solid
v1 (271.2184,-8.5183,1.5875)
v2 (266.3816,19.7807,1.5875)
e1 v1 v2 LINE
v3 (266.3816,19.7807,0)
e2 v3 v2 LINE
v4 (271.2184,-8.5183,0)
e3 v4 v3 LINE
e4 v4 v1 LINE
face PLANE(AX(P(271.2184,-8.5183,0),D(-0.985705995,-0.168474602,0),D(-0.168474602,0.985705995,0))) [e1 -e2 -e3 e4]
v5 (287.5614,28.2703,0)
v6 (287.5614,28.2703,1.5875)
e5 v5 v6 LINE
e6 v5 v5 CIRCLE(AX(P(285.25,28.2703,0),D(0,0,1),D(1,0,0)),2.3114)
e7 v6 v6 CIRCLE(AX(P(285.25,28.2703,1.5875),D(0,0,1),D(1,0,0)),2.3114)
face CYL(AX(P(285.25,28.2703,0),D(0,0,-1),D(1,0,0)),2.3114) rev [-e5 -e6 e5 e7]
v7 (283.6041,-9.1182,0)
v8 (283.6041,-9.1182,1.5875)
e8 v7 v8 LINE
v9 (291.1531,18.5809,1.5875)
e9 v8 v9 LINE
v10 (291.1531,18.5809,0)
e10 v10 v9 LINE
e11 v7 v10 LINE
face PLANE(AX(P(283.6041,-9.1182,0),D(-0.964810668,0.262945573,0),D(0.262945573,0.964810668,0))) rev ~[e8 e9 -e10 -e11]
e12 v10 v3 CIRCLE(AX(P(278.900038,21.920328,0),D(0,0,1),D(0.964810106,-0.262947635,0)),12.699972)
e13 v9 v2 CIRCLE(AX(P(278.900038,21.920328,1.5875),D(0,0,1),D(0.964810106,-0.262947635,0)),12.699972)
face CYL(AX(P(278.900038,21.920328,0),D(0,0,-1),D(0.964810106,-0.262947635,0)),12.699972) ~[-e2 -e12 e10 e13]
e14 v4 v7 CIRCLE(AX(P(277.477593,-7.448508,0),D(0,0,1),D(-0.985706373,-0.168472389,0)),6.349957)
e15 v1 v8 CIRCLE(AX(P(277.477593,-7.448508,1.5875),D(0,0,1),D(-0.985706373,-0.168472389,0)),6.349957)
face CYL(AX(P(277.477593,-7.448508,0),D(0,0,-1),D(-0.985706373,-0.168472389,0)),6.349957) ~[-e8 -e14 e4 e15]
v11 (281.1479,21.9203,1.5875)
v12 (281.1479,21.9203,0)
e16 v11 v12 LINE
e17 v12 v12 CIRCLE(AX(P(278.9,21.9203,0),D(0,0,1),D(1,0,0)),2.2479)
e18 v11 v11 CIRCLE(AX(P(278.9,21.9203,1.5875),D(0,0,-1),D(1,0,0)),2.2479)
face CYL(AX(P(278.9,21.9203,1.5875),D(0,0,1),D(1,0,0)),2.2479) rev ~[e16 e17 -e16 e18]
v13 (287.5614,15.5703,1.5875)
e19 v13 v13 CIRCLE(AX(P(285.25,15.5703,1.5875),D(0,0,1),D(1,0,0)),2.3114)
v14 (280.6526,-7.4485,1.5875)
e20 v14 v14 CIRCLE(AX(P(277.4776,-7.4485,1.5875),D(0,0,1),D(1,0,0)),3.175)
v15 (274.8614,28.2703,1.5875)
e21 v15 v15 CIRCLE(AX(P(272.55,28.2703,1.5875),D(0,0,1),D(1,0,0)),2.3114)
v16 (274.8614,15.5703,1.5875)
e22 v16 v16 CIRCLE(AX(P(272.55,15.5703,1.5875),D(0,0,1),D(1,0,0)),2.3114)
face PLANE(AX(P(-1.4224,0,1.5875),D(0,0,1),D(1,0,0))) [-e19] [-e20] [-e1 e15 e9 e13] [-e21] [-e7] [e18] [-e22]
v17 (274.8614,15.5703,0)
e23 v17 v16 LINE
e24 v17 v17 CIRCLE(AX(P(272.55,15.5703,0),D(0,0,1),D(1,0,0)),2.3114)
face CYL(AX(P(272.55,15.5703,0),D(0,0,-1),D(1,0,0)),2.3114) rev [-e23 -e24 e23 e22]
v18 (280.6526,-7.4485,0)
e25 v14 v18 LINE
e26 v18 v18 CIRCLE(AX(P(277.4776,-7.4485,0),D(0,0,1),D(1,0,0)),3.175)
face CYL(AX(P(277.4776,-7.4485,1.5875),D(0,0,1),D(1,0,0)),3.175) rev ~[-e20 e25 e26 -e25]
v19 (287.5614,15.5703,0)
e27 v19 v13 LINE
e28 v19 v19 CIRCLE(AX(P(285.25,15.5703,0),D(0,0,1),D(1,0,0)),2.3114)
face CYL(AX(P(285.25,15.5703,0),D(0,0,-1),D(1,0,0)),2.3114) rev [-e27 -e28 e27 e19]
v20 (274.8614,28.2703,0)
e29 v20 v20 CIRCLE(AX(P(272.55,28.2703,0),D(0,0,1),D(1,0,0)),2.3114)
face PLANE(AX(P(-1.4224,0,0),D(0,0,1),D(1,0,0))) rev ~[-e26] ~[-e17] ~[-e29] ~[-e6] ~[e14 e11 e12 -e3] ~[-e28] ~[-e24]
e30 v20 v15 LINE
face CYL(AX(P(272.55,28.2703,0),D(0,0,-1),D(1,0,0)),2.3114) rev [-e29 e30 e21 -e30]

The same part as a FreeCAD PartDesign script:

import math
import FreeCAD as App
import Part
import Sketcher

V = App.Vector
Q = App.Units.Quantity

doc = App.newDocument("Part")
body = doc.addObject("PartDesign::Body", "Body")

# Sketch on XY plane
sketch1 = doc.addObject("Sketcher::SketchObject", "Sketch")
body.addObject(sketch1)
sketch1.AttachmentSupport = (doc.XY_Plane, [""])
sketch1.MapMode = "FlatFace"
sketch1.addGeometry(Part.LineSegment(V(283.6041, -9.1182, 0), V(291.1531, 18.5809, 0)), False)
sketch1.addGeometry(Part.ArcOfCircle(Part.Circle(V(278.9, 21.9203, 0), V(0, 0, 1), 12.700002), math.radians(-15.244871), math.radians(189.699069)), False)
sketch1.addGeometry(Part.LineSegment(V(266.3816, 19.7807, 0), V(271.2184, -8.5183, 0)), False)
sketch1.addGeometry(Part.ArcOfCircle(Part.Circle(V(277.4776, -7.4485, 0), V(0, 0, 1), 6.349965), math.radians(-170.300931), math.radians(-15.244989)), False)
sketch1.addGeometry(Part.Circle(V(277.4776, -7.4485, 0), V(0, 0, 1), 2.3114), False)
sketch1.addGeometry(Part.Circle(V(272.55, 15.5703, 0), V(0, 0, 1), 2.3114), False)
sketch1.addGeometry(Part.Circle(V(285.25, 28.2703, 0), V(0, 0, 1), 2.3114), False)
sketch1.addGeometry(Part.Circle(V(272.55, 28.2703, 0), V(0, 0, 1), 2.3114), False)
sketch1.addGeometry(Part.Circle(V(285.25, 15.5703, 0), V(0, 0, 1), 2.3114), False)
sketch1.addConstraint(Sketcher.Constraint("Tangent", 0, 2, 1, 1))
sketch1.addConstraint(Sketcher.Constraint("Tangent", 1, 2, 2, 1))
sketch1.addConstraint(Sketcher.Constraint("Tangent", 2, 2, 3, 1))
sketch1.addConstraint(Sketcher.Constraint("Tangent", 3, 2, 0, 1))
sketch1.addConstraint(Sketcher.Constraint("Coincident", 4, 3, 3, 3))
sketch1.addConstraint(Sketcher.Constraint("Equal", 4, 5))
sketch1.addConstraint(Sketcher.Constraint("Equal", 5, 6))
sketch1.addConstraint(Sketcher.Constraint("Equal", 6, 7))
sketch1.addConstraint(Sketcher.Constraint("Equal", 7, 8))
sketch1.addConstraint(Sketcher.Constraint("Horizontal", 6, 3, 7, 3))
sketch1.addConstraint(Sketcher.Constraint("Horizontal", 5, 3, 8, 3))
sketch1.addConstraint(Sketcher.Constraint("Vertical", 5, 3, 7, 3))
sketch1.addConstraint(Sketcher.Constraint("Vertical", 6, 3, 8, 3))
sketch1.addConstraint(Sketcher.Constraint("Radius", 1, Q("0.5 in")))
sketch1.addConstraint(Sketcher.Constraint("Radius", 3, Q("0.25 in")))
sketch1.addConstraint(Sketcher.Constraint("DistanceX", 5, 3, 6, 3, Q("0.5 in")))
sketch1.addConstraint(Sketcher.Constraint("DistanceY", 5, 3, 6, 3, Q("0.5 in")))
sketch1.addConstraint(Sketcher.Constraint("Diameter", 4, Q("0.182 in")))
sketch1.addConstraint(Sketcher.Constraint("Angle", 2, Q("-80.3009 deg")))
sketch1.addConstraint(Sketcher.Constraint("DistanceX", 5, 3, 1, 3, Q("0.25 in")))
sketch1.addConstraint(Sketcher.Constraint("DistanceY", 5, 3, 1, 3, Q("0.25 in")))
sketch1.addConstraint(Sketcher.Constraint("DistanceY", -1, 1, 1, 3, Q("0.863 in")))
sketch1.addConstraint(Sketcher.Constraint("DistanceX", 3, 3, 1, 3, Q("0.056 in")))
sketch1.addConstraint(Sketcher.Constraint("DistanceX", -1, 1, 2, 2, Q("10.6779 in")))
pad1 = doc.addObject("PartDesign::Pad", "Pad")
body.addObject(pad1)
pad1.Profile = sketch1
pad1.Length = Q("0.0625 in")

# Sketch on XY plane
sketch2 = doc.addObject("Sketcher::SketchObject", "Sketch001")
body.addObject(sketch2)
sketch2.AttachmentSupport = (doc.XY_Plane, [""])
sketch2.MapMode = "FlatFace"
sketch2.AttachmentOffset = App.Placement(V(0, 0, 0.0625 * 25.4), App.Rotation())
sketch2.addGeometry(Part.Circle(V(277.4776, -7.4485, 0), V(0, 0, 1), 3.175), False)
sketch2.addConstraint(Sketcher.Constraint("Diameter", 0, Q("0.25 in")))
sketch2.addConstraint(Sketcher.Constraint("DistanceX", -1, 1, 0, 3, Q("277.4776 mm")))
sketch2.addConstraint(Sketcher.Constraint("DistanceY", 0, 3, -1, 1, Q("7.4485 mm")))
pocket1 = doc.addObject("PartDesign::Pocket", "Pocket")
body.addObject(pocket1)
pocket1.Profile = sketch2
pocket1.Length = Q("0.0625 in")

# Sketch on XY plane
sketch3 = doc.addObject("Sketcher::SketchObject", "Sketch002")
body.addObject(sketch3)
sketch3.AttachmentSupport = (doc.XY_Plane, [""])
sketch3.MapMode = "FlatFace"
sketch3.AttachmentOffset = App.Placement(V(0, 0, 0.0625 * 25.4), App.Rotation())
sketch3.addGeometry(Part.Circle(V(278.9, 21.9203, 0), V(0, 0, 1), 2.2479), False)
sketch3.addConstraint(Sketcher.Constraint("Diameter", 0, Q("0.177 in")))
sketch3.addConstraint(Sketcher.Constraint("DistanceY", -1, 1, 0, 3, Q("0.863 in")))
sketch3.addConstraint(Sketcher.Constraint("DistanceX", -1, 1, 0, 3, Q("278.9 mm")))
pocket2 = doc.addObject("PartDesign::Pocket", "Pocket001")
body.addObject(pocket2)
pocket2.Profile = sketch3
pocket2.Length = Q("0.0625 in")

doc.recompute()
